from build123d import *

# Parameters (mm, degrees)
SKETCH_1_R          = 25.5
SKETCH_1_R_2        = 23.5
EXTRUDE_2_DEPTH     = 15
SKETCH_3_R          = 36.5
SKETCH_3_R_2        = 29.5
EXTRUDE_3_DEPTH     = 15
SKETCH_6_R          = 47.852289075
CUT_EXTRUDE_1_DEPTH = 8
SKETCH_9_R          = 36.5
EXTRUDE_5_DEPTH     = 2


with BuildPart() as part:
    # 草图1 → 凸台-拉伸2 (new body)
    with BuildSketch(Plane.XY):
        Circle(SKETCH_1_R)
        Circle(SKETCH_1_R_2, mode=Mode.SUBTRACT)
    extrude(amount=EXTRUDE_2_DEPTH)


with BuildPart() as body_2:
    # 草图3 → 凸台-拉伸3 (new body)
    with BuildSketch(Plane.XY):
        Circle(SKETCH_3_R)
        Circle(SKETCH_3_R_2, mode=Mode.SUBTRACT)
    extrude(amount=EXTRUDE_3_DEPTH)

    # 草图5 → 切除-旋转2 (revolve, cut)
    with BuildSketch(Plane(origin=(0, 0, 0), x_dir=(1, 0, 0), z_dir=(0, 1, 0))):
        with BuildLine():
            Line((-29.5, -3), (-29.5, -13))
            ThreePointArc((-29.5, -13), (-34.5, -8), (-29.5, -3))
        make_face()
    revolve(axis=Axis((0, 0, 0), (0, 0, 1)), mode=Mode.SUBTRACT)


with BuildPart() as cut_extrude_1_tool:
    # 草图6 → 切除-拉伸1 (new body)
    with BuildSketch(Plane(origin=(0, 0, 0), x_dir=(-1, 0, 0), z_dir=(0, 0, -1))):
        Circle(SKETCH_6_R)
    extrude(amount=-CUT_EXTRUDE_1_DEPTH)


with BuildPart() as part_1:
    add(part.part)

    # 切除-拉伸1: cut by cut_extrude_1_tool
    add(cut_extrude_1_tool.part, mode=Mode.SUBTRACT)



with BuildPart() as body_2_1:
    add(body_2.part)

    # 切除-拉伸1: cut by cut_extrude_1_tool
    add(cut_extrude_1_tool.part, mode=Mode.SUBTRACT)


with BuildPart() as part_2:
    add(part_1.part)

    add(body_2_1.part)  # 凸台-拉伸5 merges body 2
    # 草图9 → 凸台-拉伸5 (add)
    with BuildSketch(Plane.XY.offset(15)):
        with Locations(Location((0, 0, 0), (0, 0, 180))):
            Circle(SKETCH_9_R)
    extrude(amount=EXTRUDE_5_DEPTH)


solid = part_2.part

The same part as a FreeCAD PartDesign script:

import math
import FreeCAD as App
import Part
import Sketcher

doc = App.newDocument("Part")
body = doc.addObject("PartDesign::Body", "Body")

# Sketch on XY plane
sketch1 = doc.addObject("Sketcher::SketchObject", "Sketch")
body.addObject(sketch1)
sketch1.AttachmentSupport = (doc.XY_Plane, [""])
sketch1.MapMode = "FlatFace"
sketch1.addGeometry(Part.Circle(App.Vector(0, 0, 0), App.Vector(0, 0, 1), 26), False)
sketch1.addGeometry(Part.Circle(App.Vector(0, 0, 0), App.Vector(0, 0, 1), 24), False)
sketch1.addConstraint(Sketcher.Constraint("Coincident", 0, 3, -1, 1))
sketch1.addConstraint(Sketcher.Constraint("Coincident", 1, 3, -1, 1))
sketch1.addConstraint(Sketcher.Constraint("Diameter", 0, 51.0))
sketch1.addConstraint(Sketcher.Constraint("Diameter", 1, 47.0))
pad1 = doc.addObject("PartDesign::Pad", "Pad")
body.addObject(pad1)
pad1.Profile = sketch1
pad1.Length = 15
body2 = doc.addObject("PartDesign::Body", "Body001")

# Sketch on XY plane
sketch2 = doc.addObject("Sketcher::SketchObject", "Sketch001")
body2.addObject(sketch2)
sketch2.AttachmentSupport = (doc.getObject("XY_Plane001"), [""])
sketch2.MapMode = "FlatFace"
sketch2.addGeometry(Part.Circle(App.Vector(0, 0, 0), App.Vector(0, 0, 1), 36), False)
sketch2.addGeometry(Part.Circle(App.Vector(0, 0, 0), App.Vector(0, 0, 1), 30), False)
sketch2.addConstraint(Sketcher.Constraint("Coincident", 0, 3, -1, 1))
sketch2.addConstraint(Sketcher.Constraint("Coincident", 1, 3, -1, 1))
sketch2.addConstraint(Sketcher.Constraint("Diameter", 0, 73.0))
sketch2.addConstraint(Sketcher.Constraint("Diameter", 1, 59.0))
pad2 = doc.addObject("PartDesign::Pad", "Pad001")
body2.addObject(pad2)
pad2.Profile = sketch2
pad2.Length = 15

# Sketch on XZ plane
sketch3 = doc.addObject("Sketcher::SketchObject", "Sketch002")
body2.addObject(sketch3)
sketch3.AttachmentSupport = (doc.getObject("XZ_Plane001"), [""])
sketch3.MapMode = "FlatFace"
sketch3.addGeometry(Part.LineSegment(App.Vector(-30, 13, 0), App.Vector(-30, 3, 0)), False)
sketch3.addGeometry(Part.ArcOfCircle(Part.Circle(App.Vector(-30, 8, 0), App.Vector(0, 0, 1), 5), math.radians(90), math.radians(270)), False)
sketch3.addConstraint(Sketcher.Constraint("Coincident", 0, 1, 1, 1))
sketch3.addConstraint(Sketcher.Constraint("Coincident", 1, 2, 0, 2))
sketch3.addConstraint(Sketcher.Constraint("Vertical", 0))
sketch3.addConstraint(Sketcher.Constraint("Vertical", 1, 3, 0, 1))
sketch3.addConstraint(Sketcher.Constraint("Radius", 1, 5.0))
sketch3.addConstraint(Sketcher.Constraint("DistanceY", -1, 1, 1, 3, 8.0))
sketch3.addConstraint(Sketcher.Constraint("DistanceX", 1, 3, -1, 1, 29.5))
groove = doc.addObject("PartDesign::Groove", "Groove")
body2.addObject(groove)
groove.Profile = sketch3
groove.ReferenceAxis = (sketch3, ["V_Axis"])
groove.Angle = 360
body3 = doc.addObject("PartDesign::Body", "Body002")

# Sketch on XY plane
sketch4 = doc.addObject("Sketcher::SketchObject", "Sketch003")
body3.addObject(sketch4)
sketch4.AttachmentSupport = (doc.getObject("XY_Plane002"), [""])
sketch4.MapMode = "FlatFace"
sketch4.addGeometry(Part.Circle(App.Vector(0, 0, 0), App.Vector(0, 0, 1), 48), False)
sketch4.addConstraint(Sketcher.Constraint("Coincident", 0, 3, -1, 1))
sketch4.addConstraint(Sketcher.Constraint("Diameter", 0, 95.704578))
pad3 = doc.addObject("PartDesign::Pad", "Pad002")
body3.addObject(pad3)
pad3.Profile = sketch4
pad3.Length = 8
doc.recompute()

body4 = doc.addObject("PartDesign::Body", "Body003")
body4.BaseFeature = body3
boolean = doc.addObject("PartDesign::Boolean", "Boolean")
body.addObject(boolean)
boolean.Type = "Cut"
boolean.addObjects([body4])
doc.recompute()

boolean2 = doc.addObject("PartDesign::Boolean", "Boolean001")
body2.addObject(boolean2)
boolean2.Type = "Cut"
boolean2.addObjects([body3])
body.AllowCompound = True
doc.recompute()

boolean3 = doc.addObject("PartDesign::Boolean", "Boolean002")
body.addObject(boolean3)
boolean3.Type = "Fuse"
boolean3.addObjects([body2])

# Sketch on XY plane
sketch5 = doc.addObject("Sketcher::SketchObject", "Sketch004")
body.addObject(sketch5)
sketch5.AttachmentSupport = (doc.XY_Plane, [""])
sketch5.MapMode = "FlatFace"
sketch5.AttachmentOffset = App.Placement(App.Vector(0, 0, 15), App.Rotation())
sketch5.addGeometry(Part.Circle(App.Vector(0, 0, 0), App.Vector(0, 0, 1), 36), False)
sketch5.addConstraint(Sketcher.Constraint("Coincident", 0, 3, -1, 1))
sketch5.addConstraint(Sketcher.Constraint("Diameter", 0, 73.0))
pad4 = doc.addObject("PartDesign::Pad", "Pad003")
body.addObject(pad4)
pad4.Profile = sketch5
pad4.Length = 2

doc.recompute()
